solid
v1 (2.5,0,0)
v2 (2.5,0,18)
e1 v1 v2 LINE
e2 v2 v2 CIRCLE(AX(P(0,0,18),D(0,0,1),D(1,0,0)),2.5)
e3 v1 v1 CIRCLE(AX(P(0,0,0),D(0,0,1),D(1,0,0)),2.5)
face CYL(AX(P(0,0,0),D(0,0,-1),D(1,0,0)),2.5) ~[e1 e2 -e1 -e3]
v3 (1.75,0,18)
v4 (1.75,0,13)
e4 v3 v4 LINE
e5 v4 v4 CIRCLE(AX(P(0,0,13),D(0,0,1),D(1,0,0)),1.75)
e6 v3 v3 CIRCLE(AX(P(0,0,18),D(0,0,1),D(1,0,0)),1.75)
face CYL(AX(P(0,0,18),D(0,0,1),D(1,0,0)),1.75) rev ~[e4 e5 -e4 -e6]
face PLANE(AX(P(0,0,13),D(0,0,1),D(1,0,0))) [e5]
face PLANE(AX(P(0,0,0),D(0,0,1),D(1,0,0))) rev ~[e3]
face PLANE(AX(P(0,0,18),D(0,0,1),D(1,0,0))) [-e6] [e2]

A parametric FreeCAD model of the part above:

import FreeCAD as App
import Part
import Sketcher
from FreeCAD import Vector

doc = App.newDocument("Part")
body = doc.addObject("PartDesign::Body", "Body")

sketch1 = body.newObject("Sketcher::SketchObject", "Sketch")
sketch1.AttachmentSupport = (doc.getObject("XY_Plane"), [""])
sketch1.MapMode = "FlatFace"
sketch1.addGeometry(Part.Circle(Vector(0, 0, 0), Vector(0, 0, 1), 2.5), False)
sketch1.addConstraint(Sketcher.Constraint("Coincident", 0, 3, -1, 1))
sketch1.addConstraint(Sketcher.Constraint("Diameter", 0, 5.0))
pad1 = body.newObject("PartDesign::Pad", "Pad")
pad1.Profile = sketch1
pad1.Length = 18

sketch2 = body.newObject("Sketcher::SketchObject", "Sketch001")
sketch2.AttachmentSupport = (doc.getObject("XY_Plane"), [""])
sketch2.MapMode = "FlatFace"
sketch2.AttachmentOffset = App.Placement(Vector(0, 0, 18), App.Rotation())
sketch2.addGeometry(Part.Circle(Vector(0, 0, 0), Vector(0, 0, 1), 1.8), False)
sketch2.addConstraint(Sketcher.Constraint("Coincident", 0, 3, -1, 1))
sketch2.addConstraint(Sketcher.Constraint("Diameter", 0, 3.5))
pocket1 = body.newObject("PartDesign::Pocket", "Pocket")
pocket1.Profile = sketch2
pocket1.Length = 5

doc.recompute()
